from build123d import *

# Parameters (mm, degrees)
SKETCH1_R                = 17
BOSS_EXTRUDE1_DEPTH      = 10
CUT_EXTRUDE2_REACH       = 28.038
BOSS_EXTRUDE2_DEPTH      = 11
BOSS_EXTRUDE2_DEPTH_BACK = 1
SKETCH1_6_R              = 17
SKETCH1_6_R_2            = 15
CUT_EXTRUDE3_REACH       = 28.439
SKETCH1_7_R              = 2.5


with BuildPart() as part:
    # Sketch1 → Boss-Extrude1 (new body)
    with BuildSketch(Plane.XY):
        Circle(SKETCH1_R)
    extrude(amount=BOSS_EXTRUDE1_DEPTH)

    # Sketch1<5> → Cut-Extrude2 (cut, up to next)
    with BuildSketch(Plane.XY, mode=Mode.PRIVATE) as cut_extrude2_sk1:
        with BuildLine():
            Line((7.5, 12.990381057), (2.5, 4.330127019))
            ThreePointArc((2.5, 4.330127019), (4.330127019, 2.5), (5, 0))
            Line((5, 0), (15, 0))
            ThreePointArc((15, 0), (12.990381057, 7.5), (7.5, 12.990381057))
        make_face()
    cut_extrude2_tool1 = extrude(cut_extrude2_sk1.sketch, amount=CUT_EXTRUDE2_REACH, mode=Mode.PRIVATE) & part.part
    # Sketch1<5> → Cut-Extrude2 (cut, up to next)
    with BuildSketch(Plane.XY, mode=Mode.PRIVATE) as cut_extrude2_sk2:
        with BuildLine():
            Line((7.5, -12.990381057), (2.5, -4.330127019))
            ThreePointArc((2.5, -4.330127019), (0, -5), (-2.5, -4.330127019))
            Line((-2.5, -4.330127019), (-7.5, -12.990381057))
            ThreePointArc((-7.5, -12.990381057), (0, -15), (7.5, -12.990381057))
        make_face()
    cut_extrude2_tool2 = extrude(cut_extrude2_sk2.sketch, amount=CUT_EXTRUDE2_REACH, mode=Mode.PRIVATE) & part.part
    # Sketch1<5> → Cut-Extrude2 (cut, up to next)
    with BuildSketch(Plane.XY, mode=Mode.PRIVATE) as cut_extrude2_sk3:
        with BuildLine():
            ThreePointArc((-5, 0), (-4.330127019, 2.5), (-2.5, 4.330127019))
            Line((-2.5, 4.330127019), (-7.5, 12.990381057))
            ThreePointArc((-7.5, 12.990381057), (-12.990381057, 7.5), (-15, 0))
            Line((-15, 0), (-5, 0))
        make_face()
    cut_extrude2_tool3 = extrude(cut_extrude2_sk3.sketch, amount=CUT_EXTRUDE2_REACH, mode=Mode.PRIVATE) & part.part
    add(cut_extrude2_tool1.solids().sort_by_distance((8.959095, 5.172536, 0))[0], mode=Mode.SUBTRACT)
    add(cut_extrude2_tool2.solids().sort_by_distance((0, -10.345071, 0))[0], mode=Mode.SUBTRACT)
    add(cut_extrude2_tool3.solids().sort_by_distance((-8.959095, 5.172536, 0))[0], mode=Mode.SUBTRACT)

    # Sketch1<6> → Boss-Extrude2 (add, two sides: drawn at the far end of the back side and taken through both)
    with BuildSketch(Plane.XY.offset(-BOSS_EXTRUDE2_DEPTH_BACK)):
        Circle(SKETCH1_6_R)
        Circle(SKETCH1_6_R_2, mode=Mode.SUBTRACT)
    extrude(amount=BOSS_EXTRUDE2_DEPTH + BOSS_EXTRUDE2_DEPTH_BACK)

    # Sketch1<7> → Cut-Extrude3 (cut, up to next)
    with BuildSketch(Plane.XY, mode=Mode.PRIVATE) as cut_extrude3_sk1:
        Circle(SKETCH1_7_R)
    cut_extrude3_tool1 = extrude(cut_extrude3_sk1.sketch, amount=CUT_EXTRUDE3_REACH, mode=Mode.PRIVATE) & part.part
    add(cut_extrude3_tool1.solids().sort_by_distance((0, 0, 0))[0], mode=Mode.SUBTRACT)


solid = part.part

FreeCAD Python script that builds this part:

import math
import FreeCAD as App
import Part
import Sketcher

V = App.Vector
Q = App.Units.Quantity

doc = App.newDocument("Part")
params = doc.addObject("Spreadsheet::Sheet", "Params")
for row, (alias, value) in enumerate([
    ("sketch1_diameter", "34 mm"),
    ("pad1_length", "10 mm"),
    ("sketch2_radius", "5 mm"),
    ("sketch2_radius2", "15 mm"),
    ("sketch3_radius", "5 mm"),
    ("sketch3_radius2", "15 mm"),
    ("sketch4_radius", "5 mm"),
    ("sketch4_radius2", "15 mm"),
    ("sketch5_diameter", "34 mm"),
    ("sketch5_diameter2", "30 mm"),
    ("pad2_length", "11 mm"),
    ("pad2_length2", "1 mm"),
    ("sketch6_diameter", "5 mm"),
], start=1):
    params.set(f"A{row}", alias)
    params.set(f"B{row}", "=" + value)
    params.setAlias(f"B{row}", alias)

body = doc.addObject("PartDesign::Body", "Body")

# Sketch on XY plane
sketch1 = body.newObject("Sketcher::SketchObject", "Sketch")
sketch1.AttachmentSupport = (doc.getObject("XY_Plane"), [""])
sketch1.MapMode = "FlatFace"
sketch1.addGeometry(Part.Circle(V(0, 0, 0), V(0, 0, 1), 17), False)
sketch1.addConstraint([
    Sketcher.Constraint("Coincident", 0, 3, -1, 1),
    Sketcher.Constraint("Diameter", 0, 34.0),
])
sketch1.setExpression("Constraints[1]", "Params.sketch1_diameter")
pad1 = body.newObject("PartDesign::Pad", "Pad")
pad1.Profile = sketch1
pad1.setExpression("Length", "Params.pad1_length")

# Sketch on XY plane
sketch2 = body.newObject("Sketcher::SketchObject", "Sketch001")
sketch2.AttachmentSupport = (doc.getObject("XY_Plane"), [""])
sketch2.MapMode = "FlatFace"
sketch2.addGeometry([
    Part.LineSegment(V(8, 13, 0), V(2, 4, 0)),
    Part.ArcOfCircle(Part.Circle(V(0, 0, 0), V(0, 0, 1), 5), math.radians(0), math.radians(60)),
    Part.LineSegment(V(5, 0, 0), V(15, 0, 0)),
    Part.ArcOfCircle(Part.Circle(V(0, 0, 0), V(0, 0, 1), 15), math.radians(0), math.radians(60)),
], False)
sketch2.addConstraint([
    Sketcher.Constraint("Coincident", 0, 2, 1, 2),
    Sketcher.Constraint("Coincident", 1, 1, 2, 1),
    Sketcher.Constraint("Coincident", 2, 2, 3, 1),
    Sketcher.Constraint("Coincident", 3, 2, 0, 1),
    Sketcher.Constraint("Horizontal", 2),
    Sketcher.Constraint("Coincident", 1, 3, -1, 1),
    Sketcher.Constraint("Coincident", 3, 3, -1, 1),
    Sketcher.Constraint("PointOnObject", 1, 1, -1),
    Sketcher.Constraint("Radius", 1, 5.0),
    Sketcher.Constraint("Radius", 3, 15.0),
    Sketcher.Constraint("Angle", 0, Q("-120 deg")),
    Sketcher.Constraint("DistanceX", -1, 1, 0, 2, 2.5),
])
sketch2.setExpression("Constraints[8]", "Params.sketch2_radius")
sketch2.setExpression("Constraints[9]", "Params.sketch2_radius2")
pocket1 = body.newObject("PartDesign::Pocket", "Pocket")
pocket1.Profile = sketch2
pocket1.Type = "UpToFirst"
pocket1.Reversed = True

# Sketch on XY plane
sketch3 = body.newObject("Sketcher::SketchObject", "Sketch002")
sketch3.AttachmentSupport = (doc.getObject("XY_Plane"), [""])
sketch3.MapMode = "FlatFace"
sketch3.addGeometry([
    Part.LineSegment(V(8, -13, 0), V(2, -4, 0)),
    Part.ArcOfCircle(Part.Circle(V(0, 0, 0), V(0, 0, 1), 5), math.radians(-120), math.radians(-60)),
    Part.LineSegment(V(-2, -4, 0), V(-8, -13, 0)),
    Part.ArcOfCircle(Part.Circle(V(0, 0, 0), V(0, 0, 1), 15), math.radians(-120), math.radians(-60)),
], False)
sketch3.addConstraint([
    Sketcher.Constraint("Coincident", 0, 2, 1, 2),
    Sketcher.Constraint("Coincident", 1, 1, 2, 1),
    Sketcher.Constraint("Coincident", 2, 2, 3, 1),
    Sketcher.Constraint("Coincident", 3, 2, 0, 1),
    Sketcher.Constraint("Coincident", 1, 3, -1, 1),
    Sketcher.Constraint("Coincident", 3, 3, -1, 1),
    Sketcher.Constraint("Horizontal", 0, 2, 1, 1),
    Sketcher.Constraint("Horizontal", 2, 2, 3, 2),
    Sketcher.Constraint("Radius", 1, 5.0),
    Sketcher.Constraint("Radius", 3, 15.0),
    Sketcher.Constraint("Angle", 0, Q("120 deg")),
    Sketcher.Constraint("DistanceX", 1, 1, 0, 2, 5.0),
])
sketch3.setExpression("Constraints[8]", "Params.sketch3_radius")
sketch3.setExpression("Constraints[9]", "Params.sketch3_radius2")
pocket2 = body.newObject("PartDesign::Pocket", "Pocket001")
pocket2.Profile = sketch3
pocket2.Type = "UpToFirst"
pocket2.Reversed = True

# Sketch on XY plane
sketch4 = body.newObject("Sketcher::SketchObject", "Sketch003")
sketch4.AttachmentSupport = (doc.getObject("XY_Plane"), [""])
sketch4.MapMode = "FlatFace"
sketch4.addGeometry([
    Part.ArcOfCircle(Part.Circle(V(0, 0, 0), V(0, 0, 1), 5), math.radians(120), math.radians(180)),
    Part.LineSegment(V(-2, 4, 0), V(-8, 13, 0)),
    Part.ArcOfCircle(Part.Circle(V(0, 0, 0), V(0, 0, 1), 15), math.radians(120), math.radians(180)),
    Part.LineSegment(V(-15, 0, 0), V(-5, 0, 0)),
], False)
sketch4.addConstraint([
    Sketcher.Constraint("Coincident", 0, 1, 1, 1),
    Sketcher.Constraint("Coincident", 1, 2, 2, 1),
    Sketcher.Constraint("Coincident", 2, 2, 3, 1),
    Sketcher.Constraint("Coincident", 3, 2, 0, 2),
    Sketcher.Constraint("Horizontal", 3),
    Sketcher.Constraint("Coincident", 0, 3, -1, 1),
    Sketcher.Constraint("Coincident", 2, 3, -1, 1),
    Sketcher.Constraint("PointOnObject", 2, 2, -1),
    Sketcher.Constraint("Radius", 0, 5.0),
    Sketcher.Constraint("Radius", 2, 15.0),
    Sketcher.Constraint("Angle", 1, Q("120 deg")),
    Sketcher.Constraint("DistanceX", 0, 1, -1, 1, 2.5),
])
sketch4.setExpression("Constraints[8]", "Params.sketch4_radius")
sketch4.setExpression("Constraints[9]", "Params.sketch4_radius2")
pocket3 = body.newObject("PartDesign::Pocket", "Pocket002")
pocket3.Profile = sketch4
pocket3.Type = "UpToFirst"
pocket3.Reversed = True

# Sketch on XY plane
sketch5 = body.newObject("Sketcher::SketchObject", "Sketch004")
sketch5.AttachmentSupport = (doc.getObject("XY_Plane"), [""])
sketch5.MapMode = "FlatFace"
sketch5.addGeometry([
    Part.Circle(V(0, 0, 0), V(0, 0, 1), 17),
    Part.Circle(V(0, 0, 0), V(0, 0, 1), 15),
], False)
sketch5.addConstraint([
    Sketcher.Constraint("Coincident", 0, 3, -1, 1),
    Sketcher.Constraint("Coincident", 1, 3, -1, 1),
    Sketcher.Constraint("Diameter", 0, 34.0),
    Sketcher.Constraint("Diameter", 1, 30.0),
])
sketch5.setExpression("Constraints[2]", "Params.sketch5_diameter")
sketch5.setExpression("Constraints[3]", "Params.sketch5_diameter2")
pad2 = body.newObject("PartDesign::Pad", "Pad001")
pad2.Profile = sketch5
pad2.Type = "TwoLengths"
pad2.setExpression("Length", "Params.pad2_length")
pad2.setExpression("Length2", "Params.pad2_length2")

# Sketch on XY plane
sketch6 = body.newObject("Sketcher::SketchObject", "Sketch005")
sketch6.AttachmentSupport = (doc.getObject("XY_Plane"), [""])
sketch6.MapMode = "FlatFace"
sketch6.addGeometry(Part.Circle(V(0, 0, 0), V(0, 0, 1), 2.5), False)
sketch6.addConstraint([
    Sketcher.Constraint("Coincident", 0, 3, -1, 1),
    Sketcher.Constraint("Diameter", 0, 5.0),
])
sketch6.setExpression("Constraints[1]", "Params.sketch6_diameter")
pocket4 = body.newObject("PartDesign::Pocket", "Pocket003")
pocket4.Profile = sketch6
pocket4.Type = "UpToFirst"
pocket4.Reversed = True

doc.recompute()
